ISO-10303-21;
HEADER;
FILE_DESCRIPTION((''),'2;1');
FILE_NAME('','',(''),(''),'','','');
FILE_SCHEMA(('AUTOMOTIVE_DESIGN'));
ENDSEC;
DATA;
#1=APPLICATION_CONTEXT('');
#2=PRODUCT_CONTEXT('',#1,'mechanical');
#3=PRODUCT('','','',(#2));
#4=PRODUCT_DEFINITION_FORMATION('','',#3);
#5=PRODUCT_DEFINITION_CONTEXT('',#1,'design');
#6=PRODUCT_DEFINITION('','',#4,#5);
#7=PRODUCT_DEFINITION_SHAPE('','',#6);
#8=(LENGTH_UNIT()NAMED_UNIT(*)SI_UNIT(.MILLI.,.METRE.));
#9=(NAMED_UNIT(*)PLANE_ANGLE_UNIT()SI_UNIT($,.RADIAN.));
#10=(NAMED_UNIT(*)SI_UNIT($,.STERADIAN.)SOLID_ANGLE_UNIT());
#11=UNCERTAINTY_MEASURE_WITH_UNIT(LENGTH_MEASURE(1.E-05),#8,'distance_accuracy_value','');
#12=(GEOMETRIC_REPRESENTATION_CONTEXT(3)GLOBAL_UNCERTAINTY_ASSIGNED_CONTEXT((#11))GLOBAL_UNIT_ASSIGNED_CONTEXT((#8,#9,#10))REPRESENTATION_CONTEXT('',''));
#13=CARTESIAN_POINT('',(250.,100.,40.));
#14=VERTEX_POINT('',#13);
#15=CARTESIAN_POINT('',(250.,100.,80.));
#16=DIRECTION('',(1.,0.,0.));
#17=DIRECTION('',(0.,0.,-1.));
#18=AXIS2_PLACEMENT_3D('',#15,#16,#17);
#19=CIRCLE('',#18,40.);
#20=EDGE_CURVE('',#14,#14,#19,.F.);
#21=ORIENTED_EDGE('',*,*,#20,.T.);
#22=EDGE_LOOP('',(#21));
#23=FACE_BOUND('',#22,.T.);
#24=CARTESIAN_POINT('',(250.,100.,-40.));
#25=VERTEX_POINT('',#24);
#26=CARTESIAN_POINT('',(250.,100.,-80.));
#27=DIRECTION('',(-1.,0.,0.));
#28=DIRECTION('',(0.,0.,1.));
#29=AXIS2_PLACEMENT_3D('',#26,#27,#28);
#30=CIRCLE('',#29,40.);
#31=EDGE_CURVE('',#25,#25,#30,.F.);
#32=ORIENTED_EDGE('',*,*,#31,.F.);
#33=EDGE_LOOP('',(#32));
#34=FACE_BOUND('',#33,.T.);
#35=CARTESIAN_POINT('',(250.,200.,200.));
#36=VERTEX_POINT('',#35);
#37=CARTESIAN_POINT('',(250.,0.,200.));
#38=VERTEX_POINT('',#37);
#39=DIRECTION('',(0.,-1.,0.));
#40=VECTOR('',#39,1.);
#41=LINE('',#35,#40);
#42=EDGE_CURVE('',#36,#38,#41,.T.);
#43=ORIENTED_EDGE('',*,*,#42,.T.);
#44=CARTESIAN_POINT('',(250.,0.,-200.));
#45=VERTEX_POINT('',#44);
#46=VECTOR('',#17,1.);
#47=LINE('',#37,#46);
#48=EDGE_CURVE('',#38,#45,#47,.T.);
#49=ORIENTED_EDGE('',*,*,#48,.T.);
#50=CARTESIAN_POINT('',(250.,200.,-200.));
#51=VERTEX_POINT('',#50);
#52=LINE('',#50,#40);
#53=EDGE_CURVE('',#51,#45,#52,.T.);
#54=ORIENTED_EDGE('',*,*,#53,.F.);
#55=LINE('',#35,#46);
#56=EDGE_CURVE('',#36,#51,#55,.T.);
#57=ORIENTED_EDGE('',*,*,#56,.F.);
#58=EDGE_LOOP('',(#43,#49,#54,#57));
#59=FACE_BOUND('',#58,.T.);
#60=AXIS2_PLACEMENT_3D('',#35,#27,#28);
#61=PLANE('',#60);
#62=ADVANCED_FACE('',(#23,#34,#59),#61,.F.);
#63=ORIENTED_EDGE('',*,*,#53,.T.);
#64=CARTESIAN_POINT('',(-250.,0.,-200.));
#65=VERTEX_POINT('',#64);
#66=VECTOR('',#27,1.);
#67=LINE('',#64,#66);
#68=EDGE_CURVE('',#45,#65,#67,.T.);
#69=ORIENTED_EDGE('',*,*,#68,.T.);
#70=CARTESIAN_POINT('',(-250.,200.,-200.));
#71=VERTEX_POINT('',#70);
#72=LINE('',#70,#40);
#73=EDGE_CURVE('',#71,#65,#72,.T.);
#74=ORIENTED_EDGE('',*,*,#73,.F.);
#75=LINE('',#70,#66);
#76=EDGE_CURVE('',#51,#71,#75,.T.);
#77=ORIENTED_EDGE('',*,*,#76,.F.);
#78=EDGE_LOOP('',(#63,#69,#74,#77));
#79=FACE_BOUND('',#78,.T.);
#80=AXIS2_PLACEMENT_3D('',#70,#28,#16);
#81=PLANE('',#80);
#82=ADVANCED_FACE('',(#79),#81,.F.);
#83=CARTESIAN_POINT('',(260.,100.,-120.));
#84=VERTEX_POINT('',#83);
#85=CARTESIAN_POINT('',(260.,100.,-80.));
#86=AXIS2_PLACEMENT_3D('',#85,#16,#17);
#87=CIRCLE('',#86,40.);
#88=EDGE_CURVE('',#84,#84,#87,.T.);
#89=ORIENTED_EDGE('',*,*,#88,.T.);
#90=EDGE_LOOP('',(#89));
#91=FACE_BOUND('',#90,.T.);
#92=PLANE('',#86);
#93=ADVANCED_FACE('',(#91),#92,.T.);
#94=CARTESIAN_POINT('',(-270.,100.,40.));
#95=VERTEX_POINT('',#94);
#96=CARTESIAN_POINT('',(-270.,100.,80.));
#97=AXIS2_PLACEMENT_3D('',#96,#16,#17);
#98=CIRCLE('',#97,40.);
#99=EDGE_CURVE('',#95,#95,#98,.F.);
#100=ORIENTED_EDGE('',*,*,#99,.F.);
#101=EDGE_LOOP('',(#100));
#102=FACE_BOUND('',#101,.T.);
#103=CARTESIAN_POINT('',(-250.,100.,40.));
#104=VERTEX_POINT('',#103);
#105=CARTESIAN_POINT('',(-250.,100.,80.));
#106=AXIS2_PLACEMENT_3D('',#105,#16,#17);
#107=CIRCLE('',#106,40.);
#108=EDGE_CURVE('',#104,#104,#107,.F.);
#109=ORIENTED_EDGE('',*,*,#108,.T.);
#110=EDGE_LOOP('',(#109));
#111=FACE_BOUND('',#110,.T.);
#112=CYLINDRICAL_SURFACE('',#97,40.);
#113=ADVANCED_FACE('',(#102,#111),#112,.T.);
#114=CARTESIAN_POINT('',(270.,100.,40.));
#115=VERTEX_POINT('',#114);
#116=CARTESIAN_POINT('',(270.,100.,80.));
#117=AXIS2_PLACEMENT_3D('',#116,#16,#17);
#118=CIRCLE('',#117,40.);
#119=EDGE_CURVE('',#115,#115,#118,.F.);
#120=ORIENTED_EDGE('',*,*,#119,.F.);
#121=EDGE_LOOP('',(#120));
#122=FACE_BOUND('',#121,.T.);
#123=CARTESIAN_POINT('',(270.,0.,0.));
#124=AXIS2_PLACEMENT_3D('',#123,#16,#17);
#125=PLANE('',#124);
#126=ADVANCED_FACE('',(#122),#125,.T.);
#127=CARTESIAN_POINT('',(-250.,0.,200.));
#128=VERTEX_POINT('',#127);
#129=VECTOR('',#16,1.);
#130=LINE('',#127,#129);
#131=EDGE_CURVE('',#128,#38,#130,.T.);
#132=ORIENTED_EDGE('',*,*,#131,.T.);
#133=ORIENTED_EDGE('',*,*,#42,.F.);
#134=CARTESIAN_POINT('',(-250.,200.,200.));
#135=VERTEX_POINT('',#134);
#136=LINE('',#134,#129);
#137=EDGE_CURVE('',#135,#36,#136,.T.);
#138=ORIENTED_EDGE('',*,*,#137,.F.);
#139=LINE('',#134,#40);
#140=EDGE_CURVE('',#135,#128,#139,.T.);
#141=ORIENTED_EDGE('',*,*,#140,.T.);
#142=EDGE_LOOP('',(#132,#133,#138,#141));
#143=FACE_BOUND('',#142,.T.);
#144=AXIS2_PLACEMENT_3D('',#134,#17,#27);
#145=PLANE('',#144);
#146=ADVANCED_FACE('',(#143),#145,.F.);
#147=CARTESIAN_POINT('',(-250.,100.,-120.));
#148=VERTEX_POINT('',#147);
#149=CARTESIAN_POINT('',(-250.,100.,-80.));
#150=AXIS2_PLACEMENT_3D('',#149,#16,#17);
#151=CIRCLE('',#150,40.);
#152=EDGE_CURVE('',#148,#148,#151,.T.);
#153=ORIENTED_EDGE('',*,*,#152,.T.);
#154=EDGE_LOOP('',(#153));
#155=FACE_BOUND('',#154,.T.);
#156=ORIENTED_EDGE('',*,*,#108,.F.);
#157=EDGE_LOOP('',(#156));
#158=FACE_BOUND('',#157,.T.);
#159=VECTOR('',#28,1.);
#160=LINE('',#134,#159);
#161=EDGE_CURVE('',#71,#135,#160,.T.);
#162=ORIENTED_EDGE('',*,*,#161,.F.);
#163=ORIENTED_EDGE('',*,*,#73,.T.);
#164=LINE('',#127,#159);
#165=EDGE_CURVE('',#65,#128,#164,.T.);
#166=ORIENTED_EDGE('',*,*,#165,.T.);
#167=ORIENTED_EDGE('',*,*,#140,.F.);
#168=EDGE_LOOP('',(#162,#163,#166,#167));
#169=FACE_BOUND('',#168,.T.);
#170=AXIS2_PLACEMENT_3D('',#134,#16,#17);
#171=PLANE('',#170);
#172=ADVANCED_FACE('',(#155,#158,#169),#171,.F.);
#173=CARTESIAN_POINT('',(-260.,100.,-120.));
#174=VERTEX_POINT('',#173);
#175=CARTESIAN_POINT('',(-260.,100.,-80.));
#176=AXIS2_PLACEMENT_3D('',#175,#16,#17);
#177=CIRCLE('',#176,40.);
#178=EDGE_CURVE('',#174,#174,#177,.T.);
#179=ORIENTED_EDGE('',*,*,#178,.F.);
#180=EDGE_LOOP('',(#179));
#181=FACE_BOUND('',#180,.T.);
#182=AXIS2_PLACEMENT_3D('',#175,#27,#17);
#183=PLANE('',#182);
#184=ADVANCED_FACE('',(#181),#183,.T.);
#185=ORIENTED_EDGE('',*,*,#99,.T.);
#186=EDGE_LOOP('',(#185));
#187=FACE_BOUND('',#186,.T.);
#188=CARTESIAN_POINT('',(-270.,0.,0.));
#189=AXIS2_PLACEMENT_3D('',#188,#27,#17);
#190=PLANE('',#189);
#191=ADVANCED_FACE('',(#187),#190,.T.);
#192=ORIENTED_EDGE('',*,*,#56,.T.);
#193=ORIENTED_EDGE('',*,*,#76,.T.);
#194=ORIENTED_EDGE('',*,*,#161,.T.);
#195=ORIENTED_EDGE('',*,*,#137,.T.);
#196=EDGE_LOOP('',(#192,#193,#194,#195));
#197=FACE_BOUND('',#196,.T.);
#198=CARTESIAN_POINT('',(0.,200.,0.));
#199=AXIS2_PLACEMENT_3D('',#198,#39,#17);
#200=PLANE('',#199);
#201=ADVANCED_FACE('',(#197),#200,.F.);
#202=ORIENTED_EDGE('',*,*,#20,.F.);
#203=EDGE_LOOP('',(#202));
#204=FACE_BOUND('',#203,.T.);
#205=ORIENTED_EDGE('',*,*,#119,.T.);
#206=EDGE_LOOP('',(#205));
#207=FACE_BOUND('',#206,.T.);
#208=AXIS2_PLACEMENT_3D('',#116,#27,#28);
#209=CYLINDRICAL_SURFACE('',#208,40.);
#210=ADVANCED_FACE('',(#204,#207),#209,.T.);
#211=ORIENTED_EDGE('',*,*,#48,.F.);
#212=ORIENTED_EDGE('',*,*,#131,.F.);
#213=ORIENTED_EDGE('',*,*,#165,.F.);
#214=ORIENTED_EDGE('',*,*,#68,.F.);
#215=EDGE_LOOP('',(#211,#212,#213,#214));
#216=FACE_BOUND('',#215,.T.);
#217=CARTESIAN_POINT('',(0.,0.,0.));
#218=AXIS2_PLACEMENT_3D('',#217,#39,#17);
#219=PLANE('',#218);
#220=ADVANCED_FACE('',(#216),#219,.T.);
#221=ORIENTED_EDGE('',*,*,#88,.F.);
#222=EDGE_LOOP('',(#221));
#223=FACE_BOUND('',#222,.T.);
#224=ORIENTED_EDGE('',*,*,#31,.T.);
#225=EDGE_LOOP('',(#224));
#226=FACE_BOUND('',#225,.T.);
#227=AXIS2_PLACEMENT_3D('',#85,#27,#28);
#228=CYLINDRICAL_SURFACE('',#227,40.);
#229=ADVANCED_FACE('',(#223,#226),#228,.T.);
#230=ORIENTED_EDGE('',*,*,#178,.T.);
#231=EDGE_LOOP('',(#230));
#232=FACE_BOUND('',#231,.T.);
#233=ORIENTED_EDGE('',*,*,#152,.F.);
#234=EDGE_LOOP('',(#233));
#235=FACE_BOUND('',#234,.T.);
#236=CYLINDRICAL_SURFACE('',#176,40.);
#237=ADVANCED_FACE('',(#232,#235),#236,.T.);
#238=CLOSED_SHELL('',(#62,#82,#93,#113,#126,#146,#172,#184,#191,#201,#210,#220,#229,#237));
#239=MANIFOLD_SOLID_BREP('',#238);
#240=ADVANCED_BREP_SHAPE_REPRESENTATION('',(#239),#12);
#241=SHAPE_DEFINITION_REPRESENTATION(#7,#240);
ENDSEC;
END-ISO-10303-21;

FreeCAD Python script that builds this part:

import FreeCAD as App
import Part
import Sketcher

V = App.Vector


def add_polygon(sketch, points):
    """Adds a closed chain of lines whose ends are joined by coincident constraints."""
    first, n = sketch.GeometryCount, len(points)
    for a, b in zip(points, points[1:] + points[:1]):
        sketch.addGeometry(Part.LineSegment(App.Vector(*a, 0), App.Vector(*b, 0)), False)
    for i in range(n):
        sketch.addConstraint(Sketcher.Constraint("Coincident", first + i, 2, first + (i + 1) % n, 1))

doc = App.newDocument("Part")
body = doc.addObject("PartDesign::Body", "Body")

sketch1 = body.newObject("Sketcher::SketchObject", "Sketch")
sketch1.AttachmentSupport = (doc.getObject("XZ_Plane"), [""])
sketch1.MapMode = "FlatFace"
add_polygon(sketch1, [(-250, -200), (-250, 200), (250, 200), (250, -200)])
sketch1.addConstraint([
    Sketcher.Constraint("Vertical", 0),
    Sketcher.Constraint("Horizontal", 1),
    Sketcher.Constraint("Vertical", 2),
    Sketcher.Constraint("Horizontal", 3),
    Sketcher.Constraint("Symmetric", 0, 2, 2, 2, -1, 1),
    Sketcher.Constraint("DistanceX", 1, 1, 1, 2, 500.0),
    Sketcher.Constraint("DistanceY", 0, 1, 0, 2, 400.0),
])
pad1 = body.newObject("PartDesign::Pad", "Pad")
pad1.Profile = sketch1
pad1.Length = 200
pad1.Reversed = True

sketch2 = body.newObject("Sketcher::SketchObject", "Sketch001")
sketch2.AttachmentSupport = (doc.getObject("YZ_Plane"), [""])
sketch2.MapMode = "FlatFace"
sketch2.AttachmentOffset = App.Placement(V(0, 0, 250), App.Rotation())
sketch2.addGeometry(Part.Circle(V(100, -80, 0), V(0, 0, 1), 40), False)
sketch2.addConstraint([
    Sketcher.Constraint("Diameter", 0, 80.0),
    Sketcher.Constraint("DistanceX", -1, 1, 0, 3, 100.0),
    Sketcher.Constraint("DistanceY", 0, 3, -1, 1, 80.0),
])
pad2 = body.newObject("PartDesign::Pad", "Pad001")
pad2.Profile = sketch2
pad2.Length = 10

sketch3 = body.newObject("Sketcher::SketchObject", "Sketch002")
sketch3.AttachmentSupport = (doc.getObject("YZ_Plane"), [""])
sketch3.MapMode = "FlatFace"
sketch3.AttachmentOffset = App.Placement(V(0, 0, 250), App.Rotation())
sketch3.addGeometry(Part.Circle(V(100, 80, 0), V(0, 0, 1), 40), False)
sketch3.addConstraint([
    Sketcher.Constraint("Diameter", 0, 80.0),
    Sketcher.Constraint("DistanceX", -1, 1, 0, 3, 100.0),
    Sketcher.Constraint("DistanceY", -1, 1, 0, 3, 80.0),
])
pad3 = body.newObject("PartDesign::Pad", "Pad002")
pad3.Profile = sketch3
pad3.Length = 20
doc.recompute()

mirrored = body.newObject("PartDesign::Mirrored", "Mirrored")
mirrored.Originals = [pad2, pad3]
mirrored.MirrorPlane = (doc.getObject("YZ_Plane"), [""])
body.Tip = mirrored

doc.recompute()
